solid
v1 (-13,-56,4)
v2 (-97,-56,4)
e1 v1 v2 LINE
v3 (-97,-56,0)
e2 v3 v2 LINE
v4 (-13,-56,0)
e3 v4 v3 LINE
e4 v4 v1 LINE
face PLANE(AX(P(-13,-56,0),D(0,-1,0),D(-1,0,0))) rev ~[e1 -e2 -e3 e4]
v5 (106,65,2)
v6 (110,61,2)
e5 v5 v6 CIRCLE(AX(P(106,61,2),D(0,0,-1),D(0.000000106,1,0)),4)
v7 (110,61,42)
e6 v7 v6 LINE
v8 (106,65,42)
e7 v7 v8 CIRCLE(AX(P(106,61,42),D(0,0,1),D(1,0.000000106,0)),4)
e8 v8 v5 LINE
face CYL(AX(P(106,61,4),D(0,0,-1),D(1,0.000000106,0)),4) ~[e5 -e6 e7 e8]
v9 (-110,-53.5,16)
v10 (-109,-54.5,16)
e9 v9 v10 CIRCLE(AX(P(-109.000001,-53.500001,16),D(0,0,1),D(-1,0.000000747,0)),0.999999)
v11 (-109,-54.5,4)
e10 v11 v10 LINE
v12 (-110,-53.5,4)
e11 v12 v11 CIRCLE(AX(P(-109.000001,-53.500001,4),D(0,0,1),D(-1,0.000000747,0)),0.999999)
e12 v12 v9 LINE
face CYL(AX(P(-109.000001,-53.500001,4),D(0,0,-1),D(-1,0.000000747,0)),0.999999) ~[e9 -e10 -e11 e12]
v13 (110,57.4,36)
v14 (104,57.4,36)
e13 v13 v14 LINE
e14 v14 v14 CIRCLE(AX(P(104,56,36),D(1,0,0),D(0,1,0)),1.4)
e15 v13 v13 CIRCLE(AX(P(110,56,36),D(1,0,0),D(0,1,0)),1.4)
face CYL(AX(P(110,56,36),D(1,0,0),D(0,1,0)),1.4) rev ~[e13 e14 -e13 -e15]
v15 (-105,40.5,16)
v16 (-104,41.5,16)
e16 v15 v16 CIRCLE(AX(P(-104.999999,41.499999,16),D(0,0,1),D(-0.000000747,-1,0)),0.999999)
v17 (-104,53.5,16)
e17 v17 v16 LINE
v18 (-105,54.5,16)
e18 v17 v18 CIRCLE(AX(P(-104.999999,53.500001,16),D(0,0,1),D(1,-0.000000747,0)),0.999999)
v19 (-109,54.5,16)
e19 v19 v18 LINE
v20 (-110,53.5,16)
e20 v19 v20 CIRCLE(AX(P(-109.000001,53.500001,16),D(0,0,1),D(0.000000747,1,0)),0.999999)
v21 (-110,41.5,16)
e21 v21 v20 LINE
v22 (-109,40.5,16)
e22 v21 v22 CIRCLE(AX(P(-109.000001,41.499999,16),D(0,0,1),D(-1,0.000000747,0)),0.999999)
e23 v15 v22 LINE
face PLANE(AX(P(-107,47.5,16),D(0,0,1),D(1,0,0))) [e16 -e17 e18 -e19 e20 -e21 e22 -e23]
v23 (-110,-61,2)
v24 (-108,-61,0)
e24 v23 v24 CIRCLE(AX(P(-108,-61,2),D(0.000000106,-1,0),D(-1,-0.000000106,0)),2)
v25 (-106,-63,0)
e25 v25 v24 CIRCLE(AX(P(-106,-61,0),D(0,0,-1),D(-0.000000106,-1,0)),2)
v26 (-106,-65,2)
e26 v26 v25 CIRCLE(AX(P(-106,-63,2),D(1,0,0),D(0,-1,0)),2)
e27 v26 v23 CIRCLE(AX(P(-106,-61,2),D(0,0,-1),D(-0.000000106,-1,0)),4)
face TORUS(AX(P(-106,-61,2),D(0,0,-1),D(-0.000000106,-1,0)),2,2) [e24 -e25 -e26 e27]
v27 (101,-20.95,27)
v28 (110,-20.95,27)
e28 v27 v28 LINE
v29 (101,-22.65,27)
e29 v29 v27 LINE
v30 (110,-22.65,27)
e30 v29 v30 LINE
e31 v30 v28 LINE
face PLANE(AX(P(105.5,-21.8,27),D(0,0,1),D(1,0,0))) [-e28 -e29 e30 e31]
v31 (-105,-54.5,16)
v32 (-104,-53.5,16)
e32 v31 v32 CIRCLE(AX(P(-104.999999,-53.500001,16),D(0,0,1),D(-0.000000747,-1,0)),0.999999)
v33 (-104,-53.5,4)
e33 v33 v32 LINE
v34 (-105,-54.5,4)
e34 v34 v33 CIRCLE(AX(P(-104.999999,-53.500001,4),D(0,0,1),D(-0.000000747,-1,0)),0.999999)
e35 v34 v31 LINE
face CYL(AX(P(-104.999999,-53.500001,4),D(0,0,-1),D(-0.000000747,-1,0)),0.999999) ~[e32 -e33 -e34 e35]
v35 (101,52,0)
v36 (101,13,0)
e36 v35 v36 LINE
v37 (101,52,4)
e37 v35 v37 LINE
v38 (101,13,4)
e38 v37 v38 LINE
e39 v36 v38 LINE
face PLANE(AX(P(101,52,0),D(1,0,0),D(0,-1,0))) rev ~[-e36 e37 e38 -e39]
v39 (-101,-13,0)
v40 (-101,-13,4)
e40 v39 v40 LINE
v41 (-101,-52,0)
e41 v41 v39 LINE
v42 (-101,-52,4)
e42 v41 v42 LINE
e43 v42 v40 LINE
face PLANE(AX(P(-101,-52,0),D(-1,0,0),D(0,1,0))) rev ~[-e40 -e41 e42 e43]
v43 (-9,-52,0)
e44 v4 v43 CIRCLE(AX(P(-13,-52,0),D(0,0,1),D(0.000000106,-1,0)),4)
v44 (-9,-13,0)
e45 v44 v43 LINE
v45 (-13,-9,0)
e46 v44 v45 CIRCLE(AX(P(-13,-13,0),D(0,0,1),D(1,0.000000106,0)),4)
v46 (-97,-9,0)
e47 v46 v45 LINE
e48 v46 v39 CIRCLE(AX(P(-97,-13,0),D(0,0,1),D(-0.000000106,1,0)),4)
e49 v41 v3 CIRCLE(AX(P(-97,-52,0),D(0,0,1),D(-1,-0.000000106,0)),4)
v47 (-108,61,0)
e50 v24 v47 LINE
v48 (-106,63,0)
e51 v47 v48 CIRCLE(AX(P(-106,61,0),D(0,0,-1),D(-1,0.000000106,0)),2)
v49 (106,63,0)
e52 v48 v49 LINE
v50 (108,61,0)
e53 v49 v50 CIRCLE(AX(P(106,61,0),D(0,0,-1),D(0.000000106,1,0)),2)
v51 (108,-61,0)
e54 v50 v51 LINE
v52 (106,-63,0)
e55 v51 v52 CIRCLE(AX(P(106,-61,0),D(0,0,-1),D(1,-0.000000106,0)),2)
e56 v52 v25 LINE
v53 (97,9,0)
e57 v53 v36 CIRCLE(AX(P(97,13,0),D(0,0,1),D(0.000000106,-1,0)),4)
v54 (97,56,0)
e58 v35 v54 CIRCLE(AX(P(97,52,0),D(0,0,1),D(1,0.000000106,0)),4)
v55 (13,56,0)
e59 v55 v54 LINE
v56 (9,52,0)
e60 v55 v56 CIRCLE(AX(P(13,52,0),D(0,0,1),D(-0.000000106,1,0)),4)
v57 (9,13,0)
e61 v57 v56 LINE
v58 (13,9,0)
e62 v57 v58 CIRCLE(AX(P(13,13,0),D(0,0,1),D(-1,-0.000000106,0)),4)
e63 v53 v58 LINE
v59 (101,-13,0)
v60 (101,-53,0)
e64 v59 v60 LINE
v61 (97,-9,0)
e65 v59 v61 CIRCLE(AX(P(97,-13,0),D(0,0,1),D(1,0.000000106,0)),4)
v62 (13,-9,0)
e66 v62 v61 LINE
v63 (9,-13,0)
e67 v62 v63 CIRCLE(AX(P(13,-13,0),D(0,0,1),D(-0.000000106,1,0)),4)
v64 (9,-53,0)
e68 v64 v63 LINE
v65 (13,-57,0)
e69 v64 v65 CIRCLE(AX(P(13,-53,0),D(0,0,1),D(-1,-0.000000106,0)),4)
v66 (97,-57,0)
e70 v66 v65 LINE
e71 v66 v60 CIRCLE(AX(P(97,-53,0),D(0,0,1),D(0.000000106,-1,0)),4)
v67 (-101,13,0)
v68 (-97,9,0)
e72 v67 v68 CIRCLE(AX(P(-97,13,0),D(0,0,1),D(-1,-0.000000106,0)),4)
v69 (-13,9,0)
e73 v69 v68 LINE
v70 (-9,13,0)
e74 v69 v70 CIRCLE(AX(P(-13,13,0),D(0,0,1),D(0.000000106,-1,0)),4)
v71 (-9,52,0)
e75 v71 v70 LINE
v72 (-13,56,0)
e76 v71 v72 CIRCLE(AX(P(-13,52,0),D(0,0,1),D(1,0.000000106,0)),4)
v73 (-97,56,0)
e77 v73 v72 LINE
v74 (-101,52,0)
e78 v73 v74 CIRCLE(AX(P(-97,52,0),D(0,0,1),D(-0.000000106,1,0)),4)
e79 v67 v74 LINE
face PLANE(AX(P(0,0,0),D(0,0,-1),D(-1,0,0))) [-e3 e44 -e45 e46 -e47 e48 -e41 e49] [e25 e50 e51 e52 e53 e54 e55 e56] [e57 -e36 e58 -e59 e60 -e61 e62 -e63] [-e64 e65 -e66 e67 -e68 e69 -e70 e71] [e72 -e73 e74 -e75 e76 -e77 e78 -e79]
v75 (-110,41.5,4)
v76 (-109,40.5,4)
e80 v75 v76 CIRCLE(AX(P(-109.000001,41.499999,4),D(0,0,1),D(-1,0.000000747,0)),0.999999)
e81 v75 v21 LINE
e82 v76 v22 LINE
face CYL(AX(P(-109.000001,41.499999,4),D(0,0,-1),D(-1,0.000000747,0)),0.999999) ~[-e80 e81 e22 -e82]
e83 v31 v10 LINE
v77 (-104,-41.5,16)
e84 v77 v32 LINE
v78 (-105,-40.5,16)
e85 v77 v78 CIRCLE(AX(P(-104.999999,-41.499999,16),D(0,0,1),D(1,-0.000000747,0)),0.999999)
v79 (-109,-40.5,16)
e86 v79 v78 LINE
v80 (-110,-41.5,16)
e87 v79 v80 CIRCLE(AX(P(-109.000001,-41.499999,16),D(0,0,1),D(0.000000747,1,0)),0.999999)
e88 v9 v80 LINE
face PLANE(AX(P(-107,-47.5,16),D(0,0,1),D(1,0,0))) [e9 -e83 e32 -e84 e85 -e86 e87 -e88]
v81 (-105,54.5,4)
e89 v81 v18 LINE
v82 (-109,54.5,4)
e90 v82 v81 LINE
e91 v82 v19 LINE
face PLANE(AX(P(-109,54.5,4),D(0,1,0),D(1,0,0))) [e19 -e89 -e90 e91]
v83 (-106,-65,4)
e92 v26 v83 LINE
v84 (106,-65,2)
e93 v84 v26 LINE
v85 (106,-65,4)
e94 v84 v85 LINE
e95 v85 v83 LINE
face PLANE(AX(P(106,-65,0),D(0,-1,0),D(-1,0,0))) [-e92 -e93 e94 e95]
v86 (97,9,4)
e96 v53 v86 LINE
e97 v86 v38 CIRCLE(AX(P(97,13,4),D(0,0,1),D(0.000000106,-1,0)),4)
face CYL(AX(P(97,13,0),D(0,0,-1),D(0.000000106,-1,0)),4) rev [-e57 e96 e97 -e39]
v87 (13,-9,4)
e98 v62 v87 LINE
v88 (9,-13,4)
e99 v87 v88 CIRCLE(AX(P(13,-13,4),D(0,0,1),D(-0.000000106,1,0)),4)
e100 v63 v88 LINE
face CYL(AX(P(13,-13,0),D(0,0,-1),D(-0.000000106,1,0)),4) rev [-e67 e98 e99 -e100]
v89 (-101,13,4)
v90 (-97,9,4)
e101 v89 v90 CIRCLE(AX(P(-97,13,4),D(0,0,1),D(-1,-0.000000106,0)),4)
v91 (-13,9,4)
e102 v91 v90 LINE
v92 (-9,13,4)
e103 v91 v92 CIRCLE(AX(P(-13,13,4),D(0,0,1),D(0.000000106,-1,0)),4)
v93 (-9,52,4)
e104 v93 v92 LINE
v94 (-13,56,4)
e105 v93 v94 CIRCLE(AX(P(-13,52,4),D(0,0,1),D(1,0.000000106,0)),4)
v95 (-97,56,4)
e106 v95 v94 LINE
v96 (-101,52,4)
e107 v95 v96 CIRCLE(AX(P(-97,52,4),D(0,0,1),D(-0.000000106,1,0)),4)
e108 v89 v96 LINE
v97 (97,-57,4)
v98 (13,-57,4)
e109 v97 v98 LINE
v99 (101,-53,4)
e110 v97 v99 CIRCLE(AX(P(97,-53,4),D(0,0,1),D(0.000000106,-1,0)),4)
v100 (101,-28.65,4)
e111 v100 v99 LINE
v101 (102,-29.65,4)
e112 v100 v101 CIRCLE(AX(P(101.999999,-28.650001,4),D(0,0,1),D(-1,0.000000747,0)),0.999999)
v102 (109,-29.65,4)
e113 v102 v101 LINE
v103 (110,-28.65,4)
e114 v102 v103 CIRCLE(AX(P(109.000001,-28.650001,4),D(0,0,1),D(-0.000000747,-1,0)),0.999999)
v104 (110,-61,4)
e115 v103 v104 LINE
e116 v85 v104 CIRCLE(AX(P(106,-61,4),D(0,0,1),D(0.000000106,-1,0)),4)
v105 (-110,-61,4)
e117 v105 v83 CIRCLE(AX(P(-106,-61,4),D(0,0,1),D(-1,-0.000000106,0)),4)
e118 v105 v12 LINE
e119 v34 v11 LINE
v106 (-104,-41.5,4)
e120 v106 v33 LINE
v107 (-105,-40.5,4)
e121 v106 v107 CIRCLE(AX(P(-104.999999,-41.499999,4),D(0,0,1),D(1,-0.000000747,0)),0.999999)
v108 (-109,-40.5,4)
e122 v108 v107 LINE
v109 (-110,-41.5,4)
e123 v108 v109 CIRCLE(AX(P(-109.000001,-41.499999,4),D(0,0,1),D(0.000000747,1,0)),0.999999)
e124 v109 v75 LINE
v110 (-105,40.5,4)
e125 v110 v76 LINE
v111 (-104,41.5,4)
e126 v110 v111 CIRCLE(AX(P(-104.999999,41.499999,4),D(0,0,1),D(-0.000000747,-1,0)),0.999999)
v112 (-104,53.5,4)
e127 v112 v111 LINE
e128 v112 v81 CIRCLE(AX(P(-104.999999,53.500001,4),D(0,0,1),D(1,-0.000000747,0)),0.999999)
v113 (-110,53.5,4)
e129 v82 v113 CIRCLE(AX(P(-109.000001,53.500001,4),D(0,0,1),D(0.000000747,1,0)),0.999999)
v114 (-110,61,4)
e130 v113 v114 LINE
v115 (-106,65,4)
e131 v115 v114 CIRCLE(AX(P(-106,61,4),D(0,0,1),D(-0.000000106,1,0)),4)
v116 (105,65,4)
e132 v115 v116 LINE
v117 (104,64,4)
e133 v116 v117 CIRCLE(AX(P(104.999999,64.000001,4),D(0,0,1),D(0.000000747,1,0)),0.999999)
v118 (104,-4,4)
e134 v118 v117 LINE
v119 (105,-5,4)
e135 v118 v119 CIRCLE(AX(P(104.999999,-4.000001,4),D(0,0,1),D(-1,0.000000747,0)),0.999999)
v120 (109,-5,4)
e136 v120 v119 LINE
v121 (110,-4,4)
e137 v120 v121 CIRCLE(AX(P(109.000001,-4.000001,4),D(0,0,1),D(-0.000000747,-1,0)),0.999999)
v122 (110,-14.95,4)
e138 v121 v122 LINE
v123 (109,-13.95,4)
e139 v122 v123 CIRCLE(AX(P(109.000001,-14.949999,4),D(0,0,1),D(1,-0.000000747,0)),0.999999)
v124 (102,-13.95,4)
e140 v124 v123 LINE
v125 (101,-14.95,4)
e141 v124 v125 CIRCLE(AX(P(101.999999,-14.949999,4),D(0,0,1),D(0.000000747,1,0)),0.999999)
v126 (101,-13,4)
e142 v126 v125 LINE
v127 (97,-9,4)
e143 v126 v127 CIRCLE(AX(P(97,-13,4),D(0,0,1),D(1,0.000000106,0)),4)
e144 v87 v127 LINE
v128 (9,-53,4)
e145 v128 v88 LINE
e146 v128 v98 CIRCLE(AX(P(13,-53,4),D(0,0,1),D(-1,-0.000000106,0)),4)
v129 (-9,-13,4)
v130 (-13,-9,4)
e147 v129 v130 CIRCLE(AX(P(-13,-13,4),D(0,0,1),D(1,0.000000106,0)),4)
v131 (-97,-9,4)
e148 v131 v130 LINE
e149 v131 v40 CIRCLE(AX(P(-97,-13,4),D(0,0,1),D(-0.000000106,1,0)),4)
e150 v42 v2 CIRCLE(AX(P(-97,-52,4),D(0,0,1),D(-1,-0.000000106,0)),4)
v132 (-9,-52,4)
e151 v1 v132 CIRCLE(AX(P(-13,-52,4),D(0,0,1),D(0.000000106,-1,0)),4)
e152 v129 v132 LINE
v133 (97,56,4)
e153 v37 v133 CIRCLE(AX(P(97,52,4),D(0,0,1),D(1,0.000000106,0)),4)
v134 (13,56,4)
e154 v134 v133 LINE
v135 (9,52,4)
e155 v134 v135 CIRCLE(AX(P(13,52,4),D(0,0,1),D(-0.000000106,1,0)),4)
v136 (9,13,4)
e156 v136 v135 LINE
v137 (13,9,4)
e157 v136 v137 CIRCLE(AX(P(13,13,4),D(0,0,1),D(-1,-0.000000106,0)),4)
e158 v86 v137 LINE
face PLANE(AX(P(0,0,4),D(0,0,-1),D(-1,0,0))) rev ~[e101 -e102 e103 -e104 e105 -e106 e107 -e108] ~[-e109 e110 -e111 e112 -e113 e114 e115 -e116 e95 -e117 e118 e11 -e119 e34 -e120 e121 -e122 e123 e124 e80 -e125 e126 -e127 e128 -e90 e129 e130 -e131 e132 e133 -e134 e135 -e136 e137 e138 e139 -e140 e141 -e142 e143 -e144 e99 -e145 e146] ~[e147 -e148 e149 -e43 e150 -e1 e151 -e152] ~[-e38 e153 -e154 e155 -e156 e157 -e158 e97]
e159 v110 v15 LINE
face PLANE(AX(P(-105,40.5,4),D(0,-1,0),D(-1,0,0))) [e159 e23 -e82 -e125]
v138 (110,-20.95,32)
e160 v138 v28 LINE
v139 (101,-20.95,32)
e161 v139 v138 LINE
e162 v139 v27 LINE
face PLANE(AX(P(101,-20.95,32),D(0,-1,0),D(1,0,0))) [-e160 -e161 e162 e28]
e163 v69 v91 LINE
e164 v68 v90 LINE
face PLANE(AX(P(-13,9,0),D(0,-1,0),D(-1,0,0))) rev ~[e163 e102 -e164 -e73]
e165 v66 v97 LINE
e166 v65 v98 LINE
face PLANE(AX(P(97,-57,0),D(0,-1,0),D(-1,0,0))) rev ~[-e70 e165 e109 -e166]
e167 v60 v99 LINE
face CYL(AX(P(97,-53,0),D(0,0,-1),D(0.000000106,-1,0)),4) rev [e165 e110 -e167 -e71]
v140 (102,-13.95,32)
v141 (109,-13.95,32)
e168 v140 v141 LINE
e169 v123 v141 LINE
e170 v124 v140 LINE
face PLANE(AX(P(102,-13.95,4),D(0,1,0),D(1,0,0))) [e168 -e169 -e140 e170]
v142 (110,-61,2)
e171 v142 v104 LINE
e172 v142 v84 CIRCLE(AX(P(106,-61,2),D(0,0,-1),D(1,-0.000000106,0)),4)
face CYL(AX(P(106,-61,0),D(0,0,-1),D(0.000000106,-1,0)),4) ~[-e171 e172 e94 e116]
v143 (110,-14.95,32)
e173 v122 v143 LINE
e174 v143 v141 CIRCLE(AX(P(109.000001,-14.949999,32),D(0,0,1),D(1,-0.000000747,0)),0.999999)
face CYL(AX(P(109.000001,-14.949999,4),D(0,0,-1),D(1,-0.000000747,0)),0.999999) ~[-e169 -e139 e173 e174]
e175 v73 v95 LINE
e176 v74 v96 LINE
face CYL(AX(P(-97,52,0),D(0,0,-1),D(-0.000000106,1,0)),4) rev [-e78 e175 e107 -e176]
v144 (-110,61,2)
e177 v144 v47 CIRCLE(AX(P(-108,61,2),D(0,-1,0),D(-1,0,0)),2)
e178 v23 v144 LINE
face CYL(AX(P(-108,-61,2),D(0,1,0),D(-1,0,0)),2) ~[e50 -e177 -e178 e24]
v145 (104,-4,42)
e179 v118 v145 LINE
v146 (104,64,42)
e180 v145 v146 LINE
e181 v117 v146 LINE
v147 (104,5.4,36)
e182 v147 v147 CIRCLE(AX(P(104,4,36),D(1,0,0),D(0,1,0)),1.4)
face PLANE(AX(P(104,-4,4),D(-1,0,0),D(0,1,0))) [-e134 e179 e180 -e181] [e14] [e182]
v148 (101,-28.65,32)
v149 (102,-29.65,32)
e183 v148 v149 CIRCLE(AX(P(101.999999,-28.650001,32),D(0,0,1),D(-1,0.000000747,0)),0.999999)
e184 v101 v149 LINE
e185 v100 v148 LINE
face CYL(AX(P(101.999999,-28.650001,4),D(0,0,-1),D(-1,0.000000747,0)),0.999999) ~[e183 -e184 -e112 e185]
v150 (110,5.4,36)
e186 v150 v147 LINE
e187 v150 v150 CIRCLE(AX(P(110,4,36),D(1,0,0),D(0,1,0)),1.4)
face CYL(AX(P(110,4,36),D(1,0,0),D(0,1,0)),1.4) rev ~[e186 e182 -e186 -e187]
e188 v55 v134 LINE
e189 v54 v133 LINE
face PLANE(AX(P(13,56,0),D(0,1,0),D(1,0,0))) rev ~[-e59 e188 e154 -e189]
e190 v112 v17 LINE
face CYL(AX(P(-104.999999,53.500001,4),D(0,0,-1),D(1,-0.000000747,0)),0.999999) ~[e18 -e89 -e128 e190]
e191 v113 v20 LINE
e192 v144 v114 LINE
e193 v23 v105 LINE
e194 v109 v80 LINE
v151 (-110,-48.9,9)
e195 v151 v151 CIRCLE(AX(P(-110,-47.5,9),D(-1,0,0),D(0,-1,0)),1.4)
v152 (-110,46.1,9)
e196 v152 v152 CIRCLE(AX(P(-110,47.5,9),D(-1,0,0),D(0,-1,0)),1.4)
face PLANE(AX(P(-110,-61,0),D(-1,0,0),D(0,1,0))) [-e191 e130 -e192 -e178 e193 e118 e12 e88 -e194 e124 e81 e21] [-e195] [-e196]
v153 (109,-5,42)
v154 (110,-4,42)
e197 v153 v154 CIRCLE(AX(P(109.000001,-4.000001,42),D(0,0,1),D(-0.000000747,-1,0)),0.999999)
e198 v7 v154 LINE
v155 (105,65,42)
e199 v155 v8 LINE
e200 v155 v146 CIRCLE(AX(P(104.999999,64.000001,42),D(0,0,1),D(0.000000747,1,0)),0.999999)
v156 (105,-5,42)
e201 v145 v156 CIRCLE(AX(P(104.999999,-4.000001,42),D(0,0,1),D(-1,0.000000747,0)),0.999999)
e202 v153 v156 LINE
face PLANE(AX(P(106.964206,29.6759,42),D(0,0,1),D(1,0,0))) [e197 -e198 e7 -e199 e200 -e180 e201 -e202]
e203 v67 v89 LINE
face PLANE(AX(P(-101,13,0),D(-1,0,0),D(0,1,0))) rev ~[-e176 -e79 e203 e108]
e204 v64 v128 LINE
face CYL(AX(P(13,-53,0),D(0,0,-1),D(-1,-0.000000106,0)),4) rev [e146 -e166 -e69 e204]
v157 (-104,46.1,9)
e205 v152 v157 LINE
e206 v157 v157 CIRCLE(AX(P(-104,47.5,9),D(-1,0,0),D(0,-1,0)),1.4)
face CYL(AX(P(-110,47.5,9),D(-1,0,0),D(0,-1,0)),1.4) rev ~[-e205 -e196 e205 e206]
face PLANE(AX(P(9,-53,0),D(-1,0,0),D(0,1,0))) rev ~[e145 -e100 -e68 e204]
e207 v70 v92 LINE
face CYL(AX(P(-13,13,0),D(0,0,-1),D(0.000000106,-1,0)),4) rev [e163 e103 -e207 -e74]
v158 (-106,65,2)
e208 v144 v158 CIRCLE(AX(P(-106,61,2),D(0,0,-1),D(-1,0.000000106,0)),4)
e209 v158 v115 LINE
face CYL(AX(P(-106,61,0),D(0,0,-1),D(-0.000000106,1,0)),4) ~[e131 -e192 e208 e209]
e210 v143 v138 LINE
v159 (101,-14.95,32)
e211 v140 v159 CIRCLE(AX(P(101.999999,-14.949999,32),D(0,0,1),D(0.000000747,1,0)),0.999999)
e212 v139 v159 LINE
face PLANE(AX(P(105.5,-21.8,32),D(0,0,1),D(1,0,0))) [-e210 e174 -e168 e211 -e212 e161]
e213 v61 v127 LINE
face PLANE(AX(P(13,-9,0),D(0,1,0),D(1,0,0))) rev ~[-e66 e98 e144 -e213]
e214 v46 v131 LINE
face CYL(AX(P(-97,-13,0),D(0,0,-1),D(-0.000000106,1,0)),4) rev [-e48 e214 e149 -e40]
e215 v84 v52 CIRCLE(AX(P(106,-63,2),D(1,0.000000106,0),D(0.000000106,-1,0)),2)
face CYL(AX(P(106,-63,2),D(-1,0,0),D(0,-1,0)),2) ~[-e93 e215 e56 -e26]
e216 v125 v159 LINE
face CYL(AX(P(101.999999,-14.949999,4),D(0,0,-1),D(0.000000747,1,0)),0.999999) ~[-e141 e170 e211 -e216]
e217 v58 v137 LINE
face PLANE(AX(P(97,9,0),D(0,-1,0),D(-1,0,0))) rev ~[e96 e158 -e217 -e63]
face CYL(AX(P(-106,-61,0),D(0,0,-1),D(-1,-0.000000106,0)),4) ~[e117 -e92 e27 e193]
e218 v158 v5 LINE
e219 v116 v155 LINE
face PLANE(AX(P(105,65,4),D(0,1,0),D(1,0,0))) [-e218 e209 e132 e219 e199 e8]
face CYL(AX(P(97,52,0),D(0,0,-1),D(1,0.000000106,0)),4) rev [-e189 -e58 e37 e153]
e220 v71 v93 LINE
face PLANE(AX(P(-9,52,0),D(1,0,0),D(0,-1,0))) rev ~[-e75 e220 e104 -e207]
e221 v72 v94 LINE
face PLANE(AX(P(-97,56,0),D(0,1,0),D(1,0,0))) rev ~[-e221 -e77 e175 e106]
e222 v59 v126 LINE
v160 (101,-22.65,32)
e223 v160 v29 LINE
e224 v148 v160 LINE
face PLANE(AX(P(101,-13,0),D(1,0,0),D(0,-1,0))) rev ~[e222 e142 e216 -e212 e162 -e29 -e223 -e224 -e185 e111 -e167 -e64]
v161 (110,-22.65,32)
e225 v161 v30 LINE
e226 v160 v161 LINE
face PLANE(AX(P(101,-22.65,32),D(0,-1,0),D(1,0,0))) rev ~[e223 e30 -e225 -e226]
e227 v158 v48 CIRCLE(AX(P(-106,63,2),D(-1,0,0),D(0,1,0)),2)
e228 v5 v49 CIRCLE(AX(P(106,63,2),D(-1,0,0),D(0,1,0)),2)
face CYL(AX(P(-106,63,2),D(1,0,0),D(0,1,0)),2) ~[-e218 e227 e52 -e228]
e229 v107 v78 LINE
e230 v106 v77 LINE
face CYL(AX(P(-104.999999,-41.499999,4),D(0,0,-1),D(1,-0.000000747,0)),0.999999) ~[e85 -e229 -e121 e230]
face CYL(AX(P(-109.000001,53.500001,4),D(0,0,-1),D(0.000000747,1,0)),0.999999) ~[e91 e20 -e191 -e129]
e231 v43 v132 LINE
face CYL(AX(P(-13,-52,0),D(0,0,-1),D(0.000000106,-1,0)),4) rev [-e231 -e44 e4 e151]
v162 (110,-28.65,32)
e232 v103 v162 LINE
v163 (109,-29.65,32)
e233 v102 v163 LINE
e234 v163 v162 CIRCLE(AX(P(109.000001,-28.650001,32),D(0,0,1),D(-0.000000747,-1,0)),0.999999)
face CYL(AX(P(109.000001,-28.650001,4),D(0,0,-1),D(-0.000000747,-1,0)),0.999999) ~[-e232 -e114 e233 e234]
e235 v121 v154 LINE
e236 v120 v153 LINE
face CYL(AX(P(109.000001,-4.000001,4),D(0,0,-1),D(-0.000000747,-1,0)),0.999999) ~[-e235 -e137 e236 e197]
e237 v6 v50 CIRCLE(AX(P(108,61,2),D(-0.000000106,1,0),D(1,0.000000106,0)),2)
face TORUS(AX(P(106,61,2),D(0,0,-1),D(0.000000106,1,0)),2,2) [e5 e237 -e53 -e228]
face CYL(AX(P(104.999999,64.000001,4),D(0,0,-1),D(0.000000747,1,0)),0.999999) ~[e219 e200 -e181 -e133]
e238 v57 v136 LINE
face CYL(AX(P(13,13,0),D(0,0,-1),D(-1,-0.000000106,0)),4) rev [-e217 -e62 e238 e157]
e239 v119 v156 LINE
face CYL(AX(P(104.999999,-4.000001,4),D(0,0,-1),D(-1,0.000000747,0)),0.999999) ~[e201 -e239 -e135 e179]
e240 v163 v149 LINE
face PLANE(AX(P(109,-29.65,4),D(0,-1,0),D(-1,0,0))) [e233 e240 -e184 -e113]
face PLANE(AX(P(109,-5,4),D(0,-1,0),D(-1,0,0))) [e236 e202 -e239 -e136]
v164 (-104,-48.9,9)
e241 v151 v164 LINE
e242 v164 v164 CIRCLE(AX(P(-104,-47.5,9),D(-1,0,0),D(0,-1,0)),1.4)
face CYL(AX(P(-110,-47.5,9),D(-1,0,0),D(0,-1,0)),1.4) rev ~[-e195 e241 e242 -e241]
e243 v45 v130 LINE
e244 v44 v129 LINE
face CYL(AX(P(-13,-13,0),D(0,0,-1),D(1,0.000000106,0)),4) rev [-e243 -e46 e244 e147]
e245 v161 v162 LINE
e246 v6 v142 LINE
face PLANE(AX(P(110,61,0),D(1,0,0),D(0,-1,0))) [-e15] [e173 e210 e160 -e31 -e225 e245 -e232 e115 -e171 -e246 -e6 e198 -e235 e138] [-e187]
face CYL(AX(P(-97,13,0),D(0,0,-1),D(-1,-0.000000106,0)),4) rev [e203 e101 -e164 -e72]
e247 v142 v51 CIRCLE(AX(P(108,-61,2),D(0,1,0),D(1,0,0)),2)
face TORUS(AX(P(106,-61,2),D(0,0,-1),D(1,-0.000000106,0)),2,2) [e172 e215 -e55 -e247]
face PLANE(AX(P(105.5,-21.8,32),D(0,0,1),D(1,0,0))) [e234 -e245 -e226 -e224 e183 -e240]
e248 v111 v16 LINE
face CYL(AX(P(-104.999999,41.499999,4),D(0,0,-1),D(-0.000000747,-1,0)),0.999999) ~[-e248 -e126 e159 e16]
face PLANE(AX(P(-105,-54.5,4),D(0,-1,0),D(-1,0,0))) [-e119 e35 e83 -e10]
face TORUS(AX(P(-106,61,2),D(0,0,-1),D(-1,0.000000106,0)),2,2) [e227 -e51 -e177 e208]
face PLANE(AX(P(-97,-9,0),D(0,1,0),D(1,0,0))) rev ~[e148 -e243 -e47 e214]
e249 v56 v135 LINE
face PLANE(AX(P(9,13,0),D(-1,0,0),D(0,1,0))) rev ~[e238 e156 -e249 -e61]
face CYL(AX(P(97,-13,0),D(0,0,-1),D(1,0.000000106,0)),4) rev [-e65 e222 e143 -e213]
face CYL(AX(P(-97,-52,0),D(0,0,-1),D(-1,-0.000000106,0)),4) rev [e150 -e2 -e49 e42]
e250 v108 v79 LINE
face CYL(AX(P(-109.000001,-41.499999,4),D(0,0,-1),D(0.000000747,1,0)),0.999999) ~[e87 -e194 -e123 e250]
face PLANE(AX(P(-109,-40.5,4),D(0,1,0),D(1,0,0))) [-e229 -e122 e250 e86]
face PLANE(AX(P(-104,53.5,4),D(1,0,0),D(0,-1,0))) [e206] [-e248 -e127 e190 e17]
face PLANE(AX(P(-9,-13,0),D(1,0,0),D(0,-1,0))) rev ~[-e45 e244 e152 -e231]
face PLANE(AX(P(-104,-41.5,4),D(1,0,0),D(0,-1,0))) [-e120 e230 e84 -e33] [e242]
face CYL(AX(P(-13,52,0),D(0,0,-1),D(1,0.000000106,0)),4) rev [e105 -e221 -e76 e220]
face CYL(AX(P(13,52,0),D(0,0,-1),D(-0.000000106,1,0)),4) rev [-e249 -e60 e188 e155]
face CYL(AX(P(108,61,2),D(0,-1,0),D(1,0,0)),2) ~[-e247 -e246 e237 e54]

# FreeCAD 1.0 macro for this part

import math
import FreeCAD as App
import Part
import Sketcher
Q = App.Units.Quantity


def edges_at(feature, points):
    """Names of the edges that pass closest to the given points."""
    edges = feature.Shape.Edges
    near = lambda p: min(range(len(edges)), key=lambda i: edges[i].distToShape(Part.Vertex(*p))[0])
    return sorted({f"Edge{near(p) + 1}" for p in points})

doc = App.newDocument("Part")
params = doc.addObject("Spreadsheet::Sheet", "Params")
for row, (alias, value) in enumerate([
    ("sketch1_radius", "4 mm"),
    ("sketch1_width", "212 mm"),
    ("sketch1_width2", "84 mm"),
    ("sketch1_height", "122 mm"),
    ("sketch1_height2", "40 mm"),
    ("pad1_length", "4 mm"),
    ("sketch2_radius", "0.999999 mm"),
    ("sketch2_radius2", "4 mm"),
    ("sketch2_width", "4 mm"),
    ("sketch2_height", "68 mm"),
    ("pad2_length", "38 mm"),
    ("sketch3_diameter", "2.8 mm"),
    ("pocket1_length", "8 mm"),
    ("sketch4_radius", "0.999999 mm"),
    ("sketch4_width", "4 mm"),
    ("sketch4_height", "12 mm"),
    ("pad3_length", "12 mm"),
    ("sketch5_diameter", "2.8 mm"),
    ("pocket2_length", "8 mm"),
    ("sketch6_radius", "0.999999 mm"),
    ("sketch6_width", "7 mm"),
    ("sketch6_height", "13.7 mm"),
    ("pad4_length", "28 mm"),
    ("sketch7_width", "9 mm"),
    ("sketch7_height", "1.7 mm"),
    ("pocket3_length", "5 mm"),
    ("fillet_radius", "2 mm"),
], start=1):
    params.set(f"A{row}", alias)
    params.set(f"B{row}", "=" + value)
    params.setAlias(f"B{row}", alias)

body = doc.addObject("PartDesign::Body", "Body")

sketch1 = body.newObject("Sketcher::SketchObject", "Sketch")
sketch1.AttachmentSupport = (doc.getObject("XY_Plane"), [""])
sketch1.MapMode = "FlatFace"
sketch1.addGeometry([
    Part.LineSegment(App.Vector(106, 65, 0), App.Vector(-106, 65, 0)),
    Part.ArcOfCircle(Part.Circle(App.Vector(-106, 61, 0), App.Vector(0, 0, 1), 4), math.radians(90), math.radians(180)),
    Part.LineSegment(App.Vector(-110, 61, 0), App.Vector(-110, -61, 0)),
    Part.ArcOfCircle(Part.Circle(App.Vector(-106, -61, 0), App.Vector(0, 0, 1), 4), math.radians(-180), math.radians(-90)),
    Part.LineSegment(App.Vector(-106, -65, 0), App.Vector(106, -65, 0)),
    Part.ArcOfCircle(Part.Circle(App.Vector(106, -61, 0), App.Vector(0, 0, 1), 4), math.radians(-90), math.radians(0)),
    Part.LineSegment(App.Vector(110, -61, 0), App.Vector(110, 61, 0)),
    Part.ArcOfCircle(Part.Circle(App.Vector(106, 61, 0), App.Vector(0, 0, 1), 4), math.radians(0), math.radians(90)),
    Part.LineSegment(App.Vector(13, -9, 0), App.Vector(97, -9, 0)),
    Part.ArcOfCircle(Part.Circle(App.Vector(97, -13, 0), App.Vector(0, 0, 1), 4), math.radians(0), math.radians(90)),
    Part.LineSegment(App.Vector(101, -13, 0), App.Vector(101, -53, 0)),
    Part.ArcOfCircle(Part.Circle(App.Vector(97, -53, 0), App.Vector(0, 0, 1), 4), math.radians(-90), math.radians(0)),
    Part.LineSegment(App.Vector(97, -57, 0), App.Vector(13, -57, 0)),
    Part.ArcOfCircle(Part.Circle(App.Vector(13, -53, 0), App.Vector(0, 0, 1), 4), math.radians(-180), math.radians(-90)),
    Part.LineSegment(App.Vector(9, -53, 0), App.Vector(9, -13, 0)),
    Part.ArcOfCircle(Part.Circle(App.Vector(13, -13, 0), App.Vector(0, 0, 1), 4), math.radians(90), math.radians(180)),
    Part.LineSegment(App.Vector(-97, -9, 0), App.Vector(-13, -9, 0)),
    Part.ArcOfCircle(Part.Circle(App.Vector(-13, -13, 0), App.Vector(0, 0, 1), 4), math.radians(0), math.radians(90)),
    Part.LineSegment(App.Vector(-9, -13, 0), App.Vector(-9, -52, 0)),
    Part.ArcOfCircle(Part.Circle(App.Vector(-13, -52, 0), App.Vector(0, 0, 1), 4), math.radians(-90), math.radians(0)),
    Part.LineSegment(App.Vector(-13, -56, 0), App.Vector(-97, -56, 0)),
    Part.ArcOfCircle(Part.Circle(App.Vector(-97, -52, 0), App.Vector(0, 0, 1), 4), math.radians(-180), math.radians(-90)),
    Part.LineSegment(App.Vector(-101, -52, 0), App.Vector(-101, -13, 0)),
    Part.ArcOfCircle(Part.Circle(App.Vector(-97, -13, 0), App.Vector(0, 0, 1), 4), math.radians(90), math.radians(180)),
    Part.LineSegment(App.Vector(13, 56, 0), App.Vector(97, 56, 0)),
    Part.ArcOfCircle(Part.Circle(App.Vector(97, 52, 0), App.Vector(0, 0, 1), 4), math.radians(0), math.radians(90)),
    Part.LineSegment(App.Vector(101, 52, 0), App.Vector(101, 13, 0)),
    Part.ArcOfCircle(Part.Circle(App.Vector(97, 13, 0), App.Vector(0, 0, 1), 4), math.radians(-90), math.radians(0)),
    Part.LineSegment(App.Vector(97, 9, 0), App.Vector(13, 9, 0)),
    Part.ArcOfCircle(Part.Circle(App.Vector(13, 13, 0), App.Vector(0, 0, 1), 4), math.radians(-180), math.radians(-90)),
    Part.LineSegment(App.Vector(9, 13, 0), App.Vector(9, 52, 0)),
    Part.ArcOfCircle(Part.Circle(App.Vector(13, 52, 0), App.Vector(0, 0, 1), 4), math.radians(90), math.radians(180)),
    Part.LineSegment(App.Vector(-97, 56, 0), App.Vector(-13, 56, 0)),
    Part.ArcOfCircle(Part.Circle(App.Vector(-13, 52, 0), App.Vector(0, 0, 1), 4), math.radians(0), math.radians(90)),
    Part.LineSegment(App.Vector(-9, 52, 0), App.Vector(-9, 13, 0)),
    Part.ArcOfCircle(Part.Circle(App.Vector(-13, 13, 0), App.Vector(0, 0, 1), 4), math.radians(-90), math.radians(0)),
    Part.LineSegment(App.Vector(-13, 9, 0), App.Vector(-97, 9, 0)),
    Part.ArcOfCircle(Part.Circle(App.Vector(-97, 13, 0), App.Vector(0, 0, 1), 4), math.radians(-180), math.radians(-90)),
    Part.LineSegment(App.Vector(-101, 13, 0), App.Vector(-101, 52, 0)),
    Part.ArcOfCircle(Part.Circle(App.Vector(-97, 52, 0), App.Vector(0, 0, 1), 4), math.radians(90), math.radians(180)),
], False)
sketch1.addConstraint([
    Sketcher.Constraint("Tangent", 0, 2, 1, 1),
    Sketcher.Constraint("Tangent", 1, 2, 2, 1),
    Sketcher.Constraint("Tangent", 2, 2, 3, 1),
    Sketcher.Constraint("Tangent", 3, 2, 4, 1),
    Sketcher.Constraint("Tangent", 4, 2, 5, 1),
    Sketcher.Constraint("Tangent", 5, 2, 6, 1),
    Sketcher.Constraint("Tangent", 6, 2, 7, 1),
    Sketcher.Constraint("Tangent", 7, 2, 0, 1),
    Sketcher.Constraint("Tangent", 8, 2, 9, 2),
    Sketcher.Constraint("Tangent", 9, 1, 10, 1),
    Sketcher.Constraint("Tangent", 10, 2, 11, 2),
    Sketcher.Constraint("Tangent", 11, 1, 12, 1),
    Sketcher.Constraint("Tangent", 12, 2, 13, 2),
    Sketcher.Constraint("Tangent", 13, 1, 14, 1),
    Sketcher.Constraint("Tangent", 14, 2, 15, 2),
    Sketcher.Constraint("Tangent", 15, 1, 8, 1),
    Sketcher.Constraint("Tangent", 16, 2, 17, 2),
    Sketcher.Constraint("Tangent", 17, 1, 18, 1),
    Sketcher.Constraint("Tangent", 18, 2, 19, 2),
    Sketcher.Constraint("Tangent", 19, 1, 20, 1),
    Sketcher.Constraint("Tangent", 20, 2, 21, 2),
    Sketcher.Constraint("Tangent", 21, 1, 22, 1),
    Sketcher.Constraint("Tangent", 22, 2, 23, 2),
    Sketcher.Constraint("Tangent", 23, 1, 16, 1),
    Sketcher.Constraint("Tangent", 24, 2, 25, 2),
    Sketcher.Constraint("Tangent", 25, 1, 26, 1),
    Sketcher.Constraint("Tangent", 26, 2, 27, 2),
    Sketcher.Constraint("Tangent", 27, 1, 28, 1),
    Sketcher.Constraint("Tangent", 28, 2, 29, 2),
    Sketcher.Constraint("Tangent", 29, 1, 30, 1),
    Sketcher.Constraint("Tangent", 30, 2, 31, 2),
    Sketcher.Constraint("Tangent", 31, 1, 24, 1),
    Sketcher.Constraint("Tangent", 32, 2, 33, 2),
    Sketcher.Constraint("Tangent", 33, 1, 34, 1),
    Sketcher.Constraint("Tangent", 34, 2, 35, 2),
    Sketcher.Constraint("Tangent", 35, 1, 36, 1),
    Sketcher.Constraint("Tangent", 36, 2, 37, 2),
    Sketcher.Constraint("Tangent", 37, 1, 38, 1),
    Sketcher.Constraint("Tangent", 38, 2, 39, 2),
    Sketcher.Constraint("Tangent", 39, 1, 32, 1),
    Sketcher.Constraint("Horizontal", 0),
    Sketcher.Constraint("Vertical", 2),
    Sketcher.Constraint("Horizontal", 4),
    Sketcher.Constraint("Vertical", 6),
    Sketcher.Constraint("Horizontal", 8),
    Sketcher.Constraint("Vertical", 10),
    Sketcher.Constraint("Horizontal", 12),
    Sketcher.Constraint("Vertical", 14),
    Sketcher.Constraint("Horizontal", 16),
    Sketcher.Constraint("Vertical", 18),
    Sketcher.Constraint("Horizontal", 20),
    Sketcher.Constraint("Vertical", 22),
    Sketcher.Constraint("Horizontal", 24),
    Sketcher.Constraint("Vertical", 26),
    Sketcher.Constraint("Horizontal", 28),
    Sketcher.Constraint("Vertical", 30),
    Sketcher.Constraint("Horizontal", 32),
    Sketcher.Constraint("Vertical", 34),
    Sketcher.Constraint("Horizontal", 36),
    Sketcher.Constraint("Vertical", 38),
    Sketcher.Constraint("Equal", 1, 3),
    Sketcher.Constraint("Equal", 3, 5),
    Sketcher.Constraint("Equal", 5, 7),
    Sketcher.Constraint("Equal", 7, 9),
    Sketcher.Constraint("Equal", 9, 11),
    Sketcher.Constraint("Equal", 11, 13),
    Sketcher.Constraint("Equal", 13, 15),
    Sketcher.Constraint("Equal", 15, 17),
    Sketcher.Constraint("Equal", 17, 19),
    Sketcher.Constraint("Equal", 19, 21),
    Sketcher.Constraint("Equal", 21, 23),
    Sketcher.Constraint("Equal", 23, 25),
    Sketcher.Constraint("Equal", 25, 27),
    Sketcher.Constraint("Equal", 27, 29),
    Sketcher.Constraint("Equal", 29, 31),
    Sketcher.Constraint("Equal", 31, 33),
    Sketcher.Constraint("Equal", 33, 35),
    Sketcher.Constraint("Equal", 35, 37),
    Sketcher.Constraint("Equal", 37, 39),
    Sketcher.Constraint("Symmetric", 1, 3, 5, 3, -1, 1),
    Sketcher.Constraint("Symmetric", 21, 3, 25, 3, -1, 1),
    Sketcher.Constraint("Symmetric", 17, 3, 29, 3, -1, 1),
    Sketcher.Constraint("Symmetric", 15, 3, 35, 3, -1, 1),
    Sketcher.Constraint("Symmetric", 15, 3, 17, 3, -2),
    Sketcher.Constraint("Symmetric", 25, 3, 39, 3, -2),
    Sketcher.Constraint("Vertical", 11, 3, 25, 3),
    Sketcher.Constraint("Radius", 1, Q("4 mm")),
    Sketcher.Constraint("DistanceX", 0, 2, 0, 1, Q("212 mm")),
    Sketcher.Constraint("DistanceX", 8, 1, 8, 2, Q("84 mm")),
    Sketcher.Constraint("DistanceY", 2, 2, 2, 1, Q("122 mm")),
    Sketcher.Constraint("DistanceY", 10, 2, 10, 1, Q("40 mm")),
    Sketcher.Constraint("DistanceY", 18, 2, 18, 1, Q("39 mm")),
    Sketcher.Constraint("DistanceX", -1, 1, 9, 3, Q("97 mm")),
    Sketcher.Constraint("DistanceY", 9, 3, -1, 1, Q("13 mm")),
])
sketch1.setExpression("Constraints[86]", "Params.sketch1_radius")
sketch1.setExpression("Constraints[87]", "Params.sketch1_width")
sketch1.setExpression("Constraints[88]", "Params.sketch1_width2")
sketch1.setExpression("Constraints[89]", "Params.sketch1_height")
sketch1.setExpression("Constraints[90]", "Params.sketch1_height2")
pad1 = body.newObject("PartDesign::Pad", "Pad")
pad1.Profile = sketch1
pad1.setExpression("Length", "Params.pad1_length")

sketch2 = body.newObject("Sketcher::SketchObject", "Sketch001")
sketch2.AttachmentSupport = (doc.getObject("XY_Plane"), [""])
sketch2.MapMode = "FlatFace"
sketch2.AttachmentOffset = App.Placement(App.Vector(0, 0, 4), App.Rotation())
sketch2.addGeometry([
    Part.ArcOfCircle(Part.Circle(App.Vector(105, 64, 0), App.Vector(0, 0, 1), 1), math.radians(90), math.radians(180)),
    Part.LineSegment(App.Vector(104, 64, 0), App.Vector(104, -4, 0)),
    Part.ArcOfCircle(Part.Circle(App.Vector(105, -4, 0), App.Vector(0, 0, 1), 1), math.radians(180), math.radians(270)),
    Part.LineSegment(App.Vector(105, -5, 0), App.Vector(109, -5, 0)),
    Part.ArcOfCircle(Part.Circle(App.Vector(109, -4, 0), App.Vector(0, 0, 1), 1), math.radians(-90), math.radians(0)),
    Part.LineSegment(App.Vector(110, -4, 0), App.Vector(110, 61, 0)),
    Part.ArcOfCircle(Part.Circle(App.Vector(106, 61, 0), App.Vector(0, 0, 1), 4), math.radians(0), math.radians(90)),
    Part.LineSegment(App.Vector(106, 65, 0), App.Vector(105, 65, 0)),
], False)
sketch2.addConstraint([
    Sketcher.Constraint("Tangent", 0, 2, 1, 1),
    Sketcher.Constraint("Tangent", 1, 2, 2, 1),
    Sketcher.Constraint("Tangent", 2, 2, 3, 1),
    Sketcher.Constraint("Tangent", 3, 2, 4, 1),
    Sketcher.Constraint("Tangent", 4, 2, 5, 1),
    Sketcher.Constraint("Tangent", 5, 2, 6, 1),
    Sketcher.Constraint("Tangent", 6, 2, 7, 1),
    Sketcher.Constraint("Tangent", 7, 2, 0, 1),
    Sketcher.Constraint("Vertical", 1),
    Sketcher.Constraint("Horizontal", 3),
    Sketcher.Constraint("Vertical", 5),
    Sketcher.Constraint("Horizontal", 7),
    Sketcher.Constraint("Equal", 0, 2),
    Sketcher.Constraint("Equal", 2, 4),
    Sketcher.Constraint("Radius", 0, Q("0.999999 mm")),
    Sketcher.Constraint("Radius", 6, Q("4 mm")),
    Sketcher.Constraint("DistanceX", 3, 1, 3, 2, Q("4 mm")),
    Sketcher.Constraint("DistanceY", 1, 2, 1, 1, Q("68 mm")),
    Sketcher.Constraint("DistanceX", -1, 1, 0, 3, Q("104.999999 mm")),
    Sketcher.Constraint("DistanceY", -1, 1, 0, 3, Q("64.000001 mm")),
])
sketch2.setExpression("Constraints[14]", "Params.sketch2_radius")
sketch2.setExpression("Constraints[15]", "Params.sketch2_radius2")
sketch2.setExpression("Constraints[16]", "Params.sketch2_width")
sketch2.setExpression("Constraints[17]", "Params.sketch2_height")
pad2 = body.newObject("PartDesign::Pad", "Pad001")
pad2.Profile = sketch2
pad2.setExpression("Length", "Params.pad2_length")

sketch3 = body.newObject("Sketcher::SketchObject", "Sketch002")
sketch3.AttachmentSupport = (doc.getObject("YZ_Plane"), [""])
sketch3.MapMode = "FlatFace"
sketch3.AttachmentOffset = App.Placement(App.Vector(0, 0, 110), App.Rotation())
sketch3.addGeometry([
    Part.Circle(App.Vector(56, 36, 0), App.Vector(0, 0, 1), 1.4),
    Part.Circle(App.Vector(4, 36, 0), App.Vector(0, 0, 1), 1.4),
], False)
sketch3.addConstraint([
    Sketcher.Constraint("Equal", 0, 1),
    Sketcher.Constraint("Horizontal", 0, 3, 1, 3),
    Sketcher.Constraint("Diameter", 0, Q("2.8 mm")),
    Sketcher.Constraint("DistanceX", -1, 1, 0, 3, Q("56 mm")),
    Sketcher.Constraint("DistanceY", -1, 1, 0, 3, Q("36 mm")),
    Sketcher.Constraint("DistanceX", -1, 1, 1, 3, Q("4 mm")),
])
sketch3.setExpression("Constraints[2]", "Params.sketch3_diameter")
pocket1 = body.newObject("PartDesign::Pocket", "Pocket")
pocket1.Profile = sketch3
pocket1.setExpression("Length", "Params.pocket1_length")

sketch4 = body.newObject("Sketcher::SketchObject", "Sketch003")
sketch4.AttachmentSupport = (doc.getObject("XY_Plane"), [""])
sketch4.MapMode = "FlatFace"
sketch4.AttachmentOffset = App.Placement(App.Vector(0, 0, 4), App.Rotation())
sketch4.addGeometry([
    Part.ArcOfCircle(Part.Circle(App.Vector(-109, 53.5, 0), App.Vector(0, 0, 1), 1), math.radians(90), math.radians(180)),
    Part.LineSegment(App.Vector(-110, 53.5, 0), App.Vector(-110, 41.5, 0)),
    Part.ArcOfCircle(Part.Circle(App.Vector(-109, 41.5, 0), App.Vector(0, 0, 1), 1), math.radians(180), math.radians(270)),
    Part.LineSegment(App.Vector(-109, 40.5, 0), App.Vector(-105, 40.5, 0)),
    Part.ArcOfCircle(Part.Circle(App.Vector(-105, 41.5, 0), App.Vector(0, 0, 1), 1), math.radians(-90), math.radians(0)),
    Part.LineSegment(App.Vector(-104, 41.5, 0), App.Vector(-104, 53.5, 0)),
    Part.ArcOfCircle(Part.Circle(App.Vector(-105, 53.5, 0), App.Vector(0, 0, 1), 1), math.radians(0), math.radians(90)),
    Part.LineSegment(App.Vector(-105, 54.5, 0), App.Vector(-109, 54.5, 0)),
    Part.ArcOfCircle(Part.Circle(App.Vector(-109, -41.5, 0), App.Vector(0, 0, 1), 1), math.radians(90), math.radians(180)),
    Part.LineSegment(App.Vector(-110, -41.5, 0), App.Vector(-110, -53.5, 0)),
    Part.ArcOfCircle(Part.Circle(App.Vector(-109, -53.5, 0), App.Vector(0, 0, 1), 1), math.radians(180), math.radians(270)),
    Part.LineSegment(App.Vector(-109, -54.5, 0), App.Vector(-105, -54.5, 0)),
    Part.ArcOfCircle(Part.Circle(App.Vector(-105, -53.5, 0), App.Vector(0, 0, 1), 1), math.radians(-90), math.radians(0)),
    Part.LineSegment(App.Vector(-104, -53.5, 0), App.Vector(-104, -41.5, 0)),
    Part.ArcOfCircle(Part.Circle(App.Vector(-105, -41.5, 0), App.Vector(0, 0, 1), 1), math.radians(0), math.radians(90)),
    Part.LineSegment(App.Vector(-105, -40.5, 0), App.Vector(-109, -40.5, 0)),
], False)
sketch4.addConstraint([
    Sketcher.Constraint("Tangent", 0, 2, 1, 1),
    Sketcher.Constraint("Tangent", 1, 2, 2, 1),
    Sketcher.Constraint("Tangent", 2, 2, 3, 1),
    Sketcher.Constraint("Tangent", 3, 2, 4, 1),
    Sketcher.Constraint("Tangent", 4, 2, 5, 1),
    Sketcher.Constraint("Tangent", 5, 2, 6, 1),
    Sketcher.Constraint("Tangent", 6, 2, 7, 1),
    Sketcher.Constraint("Tangent", 7, 2, 0, 1),
    Sketcher.Constraint("Tangent", 8, 2, 9, 1),
    Sketcher.Constraint("Tangent", 9, 2, 10, 1),
    Sketcher.Constraint("Tangent", 10, 2, 11, 1),
    Sketcher.Constraint("Tangent", 11, 2, 12, 1),
    Sketcher.Constraint("Tangent", 12, 2, 13, 1),
    Sketcher.Constraint("Tangent", 13, 2, 14, 1),
    Sketcher.Constraint("Tangent", 14, 2, 15, 1),
    Sketcher.Constraint("Tangent", 15, 2, 8, 1),
    Sketcher.Constraint("Vertical", 1),
    Sketcher.Constraint("Horizontal", 3),
    Sketcher.Constraint("Vertical", 5),
    Sketcher.Constraint("Horizontal", 7),
    Sketcher.Constraint("Vertical", 9),
    Sketcher.Constraint("Horizontal", 11),
    Sketcher.Constraint("Vertical", 13),
    Sketcher.Constraint("Horizontal", 15),
    Sketcher.Constraint("Equal", 0, 2),
    Sketcher.Constraint("Equal", 2, 4),
    Sketcher.Constraint("Equal", 4, 6),
    Sketcher.Constraint("Equal", 6, 8),
    Sketcher.Constraint("Equal", 8, 10),
    Sketcher.Constraint("Equal", 10, 12),
    Sketcher.Constraint("Equal", 12, 14),
    Sketcher.Constraint("Symmetric", 2, 3, 8, 3, -1),
    Sketcher.Constraint("Symmetric", 6, 3, 12, 3, -1),
    Sketcher.Constraint("Radius", 0, Q("0.999999 mm")),
    Sketcher.Constraint("DistanceX", 3, 1, 3, 2, Q("4 mm")),
    Sketcher.Constraint("DistanceY", 1, 2, 1, 1, Q("12 mm")),
    Sketcher.Constraint("DistanceX", 0, 3, -1, 1, Q("109.000001 mm")),
    Sketcher.Constraint("DistanceY", 8, 3, 2, 3, Q("82.999999 mm")),
])
sketch4.setExpression("Constraints[33]", "Params.sketch4_radius")
sketch4.setExpression("Constraints[34]", "Params.sketch4_width")
sketch4.setExpression("Constraints[35]", "Params.sketch4_height")
pad3 = body.newObject("PartDesign::Pad", "Pad002")
pad3.Profile = sketch4
pad3.setExpression("Length", "Params.pad3_length")

sketch5 = body.newObject("Sketcher::SketchObject", "Sketch004")
sketch5.AttachmentSupport = (doc.getObject("YZ_Plane"), [""])
sketch5.MapMode = "FlatFace"
sketch5.AttachmentOffset = App.Placement(App.Vector(0, 0, -110), App.Rotation())
sketch5.addGeometry([
    Part.Circle(App.Vector(47.5, 9, 0), App.Vector(0, 0, 1), 1.4),
    Part.Circle(App.Vector(-47.5, 9, 0), App.Vector(0, 0, 1), 1.4),
], False)
sketch5.addConstraint([
    Sketcher.Constraint("Equal", 0, 1),
    Sketcher.Constraint("Symmetric", 0, 3, 1, 3, -2),
    Sketcher.Constraint("Diameter", 0, Q("2.8 mm")),
    Sketcher.Constraint("DistanceY", -1, 1, 0, 3, Q("9 mm")),
    Sketcher.Constraint("DistanceX", 1, 3, 0, 3, Q("95 mm")),
])
sketch5.setExpression("Constraints[2]", "Params.sketch5_diameter")
pocket2 = body.newObject("PartDesign::Pocket", "Pocket001")
pocket2.Profile = sketch5
pocket2.setExpression("Length", "Params.pocket2_length")
pocket2.Reversed = True

sketch6 = body.newObject("Sketcher::SketchObject", "Sketch005")
sketch6.AttachmentSupport = (doc.getObject("XY_Plane"), [""])
sketch6.MapMode = "FlatFace"
sketch6.AttachmentOffset = App.Placement(App.Vector(0, 0, 4), App.Rotation())
sketch6.addGeometry([
    Part.ArcOfCircle(Part.Circle(App.Vector(102, -14.9, 0), App.Vector(0, 0, 1), 1), math.radians(90), math.radians(180)),
    Part.LineSegment(App.Vector(101, -14.9, 0), App.Vector(101, -28.6, 0)),
    Part.ArcOfCircle(Part.Circle(App.Vector(102, -28.7, 0), App.Vector(0, 0, 1), 1), math.radians(180), math.radians(270)),
    Part.LineSegment(App.Vector(102, -29.6, 0), App.Vector(109, -29.6, 0)),
    Part.ArcOfCircle(Part.Circle(App.Vector(109, -28.7, 0), App.Vector(0, 0, 1), 1), math.radians(-90), math.radians(0)),
    Part.LineSegment(App.Vector(110, -28.6, 0), App.Vector(110, -14.9, 0)),
    Part.ArcOfCircle(Part.Circle(App.Vector(109, -14.9, 0), App.Vector(0, 0, 1), 1), math.radians(0), math.radians(90)),
    Part.LineSegment(App.Vector(109, -13.9, 0), App.Vector(102, -13.9, 0)),
], False)
sketch6.addConstraint([
    Sketcher.Constraint("Tangent", 0, 2, 1, 1),
    Sketcher.Constraint("Tangent", 1, 2, 2, 1),
    Sketcher.Constraint("Tangent", 2, 2, 3, 1),
    Sketcher.Constraint("Tangent", 3, 2, 4, 1),
    Sketcher.Constraint("Tangent", 4, 2, 5, 1),
    Sketcher.Constraint("Tangent", 5, 2, 6, 1),
    Sketcher.Constraint("Tangent", 6, 2, 7, 1),
    Sketcher.Constraint("Tangent", 7, 2, 0, 1),
    Sketcher.Constraint("Vertical", 1),
    Sketcher.Constraint("Horizontal", 3),
    Sketcher.Constraint("Vertical", 5),
    Sketcher.Constraint("Horizontal", 7),
    Sketcher.Constraint("Equal", 0, 2),
    Sketcher.Constraint("Equal", 2, 4),
    Sketcher.Constraint("Equal", 4, 6),
    Sketcher.Constraint("Radius", 0, Q("0.999999 mm")),
    Sketcher.Constraint("DistanceX", 3, 1, 3, 2, Q("7 mm")),
    Sketcher.Constraint("DistanceY", 1, 2, 1, 1, Q("13.7 mm")),
    Sketcher.Constraint("DistanceX", -1, 1, 0, 3, Q("101.999999 mm")),
    Sketcher.Constraint("DistanceY", 0, 3, -1, 1, Q("14.949999 mm")),
])
sketch6.setExpression("Constraints[15]", "Params.sketch6_radius")
sketch6.setExpression("Constraints[16]", "Params.sketch6_width")
sketch6.setExpression("Constraints[17]", "Params.sketch6_height")
pad4 = body.newObject("PartDesign::Pad", "Pad003")
pad4.Profile = sketch6
pad4.setExpression("Length", "Params.pad4_length")

sketch7 = body.newObject("Sketcher::SketchObject", "Sketch006")
sketch7.AttachmentSupport = (doc.getObject("XY_Plane"), [""])
sketch7.MapMode = "FlatFace"
sketch7.AttachmentOffset = App.Placement(App.Vector(0, 0, 32), App.Rotation())
sketch7.addGeometry([
    Part.LineSegment(App.Vector(101, -20.9, 0), App.Vector(101, -22.6, 0)),
    Part.LineSegment(App.Vector(101, -22.6, 0), App.Vector(110, -22.6, 0)),
    Part.LineSegment(App.Vector(110, -22.6, 0), App.Vector(110, -20.9, 0)),
    Part.LineSegment(App.Vector(110, -20.9, 0), App.Vector(101, -20.9, 0)),
], False)
sketch7.addConstraint([
    Sketcher.Constraint("Coincident", 0, 2, 1, 1),
    Sketcher.Constraint("Coincident", 1, 2, 2, 1),
    Sketcher.Constraint("Coincident", 2, 2, 3, 1),
    Sketcher.Constraint("Coincident", 3, 2, 0, 1),
    Sketcher.Constraint("Vertical", 0),
    Sketcher.Constraint("Horizontal", 1),
    Sketcher.Constraint("Vertical", 2),
    Sketcher.Constraint("Horizontal", 3),
    Sketcher.Constraint("DistanceX", 1, 1, 1, 2, Q("9 mm")),
    Sketcher.Constraint("DistanceY", 0, 2, 0, 1, Q("1.7 mm")),
    Sketcher.Constraint("DistanceX", -1, 1, 0, 2, Q("101 mm")),
    Sketcher.Constraint("DistanceY", 0, 2, -1, 1, Q("22.65 mm")),
])
sketch7.setExpression("Constraints[8]", "Params.sketch7_width")
sketch7.setExpression("Constraints[9]", "Params.sketch7_height")
pocket3 = body.newObject("PartDesign::Pocket", "Pocket002")
pocket3.Profile = sketch7
pocket3.setExpression("Length", "Params.pocket3_length")
doc.recompute()

fillet = body.newObject("PartDesign::Fillet", "Fillet")
fillet.Base = (pocket3, edges_at(pocket3, [(0, 65, 0)]))
fillet.setExpression("Radius", "Params.fillet_radius")

doc.recompute()
